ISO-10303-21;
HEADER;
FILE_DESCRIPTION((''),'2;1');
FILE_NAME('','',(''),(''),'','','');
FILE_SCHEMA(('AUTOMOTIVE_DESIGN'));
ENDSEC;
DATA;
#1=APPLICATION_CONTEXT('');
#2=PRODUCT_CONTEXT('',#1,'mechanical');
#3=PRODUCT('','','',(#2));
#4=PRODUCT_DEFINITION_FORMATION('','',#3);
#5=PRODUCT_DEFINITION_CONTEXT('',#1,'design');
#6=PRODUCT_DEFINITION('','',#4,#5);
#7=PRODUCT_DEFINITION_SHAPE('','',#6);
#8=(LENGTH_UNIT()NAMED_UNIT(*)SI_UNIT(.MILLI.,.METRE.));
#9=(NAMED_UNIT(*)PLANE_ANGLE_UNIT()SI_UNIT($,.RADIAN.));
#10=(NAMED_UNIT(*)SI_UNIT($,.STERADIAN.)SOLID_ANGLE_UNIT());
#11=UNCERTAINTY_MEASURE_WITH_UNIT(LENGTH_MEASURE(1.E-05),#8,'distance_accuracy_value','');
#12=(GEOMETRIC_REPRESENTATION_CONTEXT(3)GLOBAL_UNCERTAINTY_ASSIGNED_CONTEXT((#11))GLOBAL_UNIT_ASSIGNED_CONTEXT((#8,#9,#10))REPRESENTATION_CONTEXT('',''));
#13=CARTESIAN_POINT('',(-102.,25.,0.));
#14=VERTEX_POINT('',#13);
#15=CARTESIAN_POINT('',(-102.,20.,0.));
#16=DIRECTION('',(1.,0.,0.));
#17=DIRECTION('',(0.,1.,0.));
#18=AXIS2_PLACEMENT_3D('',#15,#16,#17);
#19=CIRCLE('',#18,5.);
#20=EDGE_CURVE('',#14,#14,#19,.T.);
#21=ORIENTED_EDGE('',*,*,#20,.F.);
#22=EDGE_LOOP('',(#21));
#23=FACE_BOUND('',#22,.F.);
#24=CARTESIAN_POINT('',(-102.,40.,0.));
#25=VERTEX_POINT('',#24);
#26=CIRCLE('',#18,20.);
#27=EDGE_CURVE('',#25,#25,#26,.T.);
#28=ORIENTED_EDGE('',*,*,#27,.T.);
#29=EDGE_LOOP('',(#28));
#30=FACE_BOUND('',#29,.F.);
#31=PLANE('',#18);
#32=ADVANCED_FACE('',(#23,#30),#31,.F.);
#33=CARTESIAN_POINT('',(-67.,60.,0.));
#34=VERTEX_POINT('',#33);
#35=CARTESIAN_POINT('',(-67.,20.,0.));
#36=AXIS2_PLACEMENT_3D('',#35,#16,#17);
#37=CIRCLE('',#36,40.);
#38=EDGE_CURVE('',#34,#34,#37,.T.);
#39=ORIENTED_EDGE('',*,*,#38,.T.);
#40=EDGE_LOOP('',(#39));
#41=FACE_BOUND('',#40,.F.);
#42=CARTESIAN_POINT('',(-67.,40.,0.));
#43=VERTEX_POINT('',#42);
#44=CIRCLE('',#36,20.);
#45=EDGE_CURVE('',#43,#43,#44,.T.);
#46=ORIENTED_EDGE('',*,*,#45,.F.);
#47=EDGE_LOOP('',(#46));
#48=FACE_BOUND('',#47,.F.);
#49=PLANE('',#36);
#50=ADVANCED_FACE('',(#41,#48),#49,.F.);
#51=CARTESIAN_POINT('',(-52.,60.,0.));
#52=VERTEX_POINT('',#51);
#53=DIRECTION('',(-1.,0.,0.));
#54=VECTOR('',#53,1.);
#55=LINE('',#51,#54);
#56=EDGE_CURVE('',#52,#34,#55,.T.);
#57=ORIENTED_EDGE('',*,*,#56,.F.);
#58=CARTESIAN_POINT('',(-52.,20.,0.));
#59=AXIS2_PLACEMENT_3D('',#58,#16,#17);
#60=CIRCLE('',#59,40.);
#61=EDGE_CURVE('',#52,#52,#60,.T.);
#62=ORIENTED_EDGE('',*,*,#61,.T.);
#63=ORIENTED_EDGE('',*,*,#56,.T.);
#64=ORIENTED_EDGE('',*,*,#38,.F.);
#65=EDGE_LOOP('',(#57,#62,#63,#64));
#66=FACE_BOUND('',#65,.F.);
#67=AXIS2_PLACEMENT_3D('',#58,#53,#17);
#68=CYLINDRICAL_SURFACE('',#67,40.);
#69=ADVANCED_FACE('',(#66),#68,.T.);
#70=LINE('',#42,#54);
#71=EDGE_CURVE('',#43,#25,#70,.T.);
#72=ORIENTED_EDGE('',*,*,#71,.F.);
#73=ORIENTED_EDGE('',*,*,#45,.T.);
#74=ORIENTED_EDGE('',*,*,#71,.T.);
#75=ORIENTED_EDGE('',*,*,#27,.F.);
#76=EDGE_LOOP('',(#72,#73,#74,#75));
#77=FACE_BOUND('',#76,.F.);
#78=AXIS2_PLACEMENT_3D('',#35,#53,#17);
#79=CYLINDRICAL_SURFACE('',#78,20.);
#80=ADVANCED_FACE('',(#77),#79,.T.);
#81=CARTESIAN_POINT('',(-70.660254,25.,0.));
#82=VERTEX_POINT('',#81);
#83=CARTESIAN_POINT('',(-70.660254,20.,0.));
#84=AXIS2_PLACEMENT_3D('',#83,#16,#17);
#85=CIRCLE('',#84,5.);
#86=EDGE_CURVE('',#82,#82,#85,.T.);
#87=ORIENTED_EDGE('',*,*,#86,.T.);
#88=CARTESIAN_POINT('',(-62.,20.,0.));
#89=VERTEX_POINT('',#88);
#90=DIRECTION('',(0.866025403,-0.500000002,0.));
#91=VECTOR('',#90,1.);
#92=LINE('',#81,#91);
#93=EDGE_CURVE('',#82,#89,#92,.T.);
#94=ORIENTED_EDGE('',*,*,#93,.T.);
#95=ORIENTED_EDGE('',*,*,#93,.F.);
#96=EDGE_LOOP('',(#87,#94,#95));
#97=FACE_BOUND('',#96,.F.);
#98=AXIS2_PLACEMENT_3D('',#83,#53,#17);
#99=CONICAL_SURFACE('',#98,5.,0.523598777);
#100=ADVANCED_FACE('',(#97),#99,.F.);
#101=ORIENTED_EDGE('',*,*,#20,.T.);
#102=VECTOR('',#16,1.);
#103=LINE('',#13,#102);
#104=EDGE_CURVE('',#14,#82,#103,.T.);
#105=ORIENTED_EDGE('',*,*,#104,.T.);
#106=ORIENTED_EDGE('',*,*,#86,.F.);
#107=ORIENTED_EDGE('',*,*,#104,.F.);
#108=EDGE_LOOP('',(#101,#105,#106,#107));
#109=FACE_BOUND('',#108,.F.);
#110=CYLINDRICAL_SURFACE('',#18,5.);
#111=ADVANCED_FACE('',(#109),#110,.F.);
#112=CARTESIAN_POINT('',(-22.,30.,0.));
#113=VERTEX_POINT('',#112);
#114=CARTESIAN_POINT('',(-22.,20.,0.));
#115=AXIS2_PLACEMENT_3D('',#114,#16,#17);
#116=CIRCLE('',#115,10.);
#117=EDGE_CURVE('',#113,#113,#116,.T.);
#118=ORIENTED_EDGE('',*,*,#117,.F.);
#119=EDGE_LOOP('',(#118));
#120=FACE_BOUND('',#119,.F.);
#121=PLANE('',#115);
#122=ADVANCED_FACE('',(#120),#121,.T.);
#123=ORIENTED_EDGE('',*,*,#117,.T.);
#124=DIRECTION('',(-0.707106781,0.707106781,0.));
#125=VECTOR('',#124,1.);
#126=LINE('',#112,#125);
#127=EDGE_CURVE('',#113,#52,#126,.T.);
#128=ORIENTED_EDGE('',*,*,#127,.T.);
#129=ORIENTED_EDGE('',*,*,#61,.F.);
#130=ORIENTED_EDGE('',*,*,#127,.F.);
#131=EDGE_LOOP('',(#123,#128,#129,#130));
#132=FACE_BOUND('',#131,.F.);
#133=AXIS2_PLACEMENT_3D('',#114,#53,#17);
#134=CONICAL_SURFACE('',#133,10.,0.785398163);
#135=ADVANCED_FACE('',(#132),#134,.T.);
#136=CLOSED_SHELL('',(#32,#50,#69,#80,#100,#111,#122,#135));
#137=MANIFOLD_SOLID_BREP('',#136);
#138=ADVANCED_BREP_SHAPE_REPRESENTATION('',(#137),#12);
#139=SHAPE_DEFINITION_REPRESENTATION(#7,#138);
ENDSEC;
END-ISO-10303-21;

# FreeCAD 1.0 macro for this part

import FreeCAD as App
import Part
import Sketcher
Q = App.Units.Quantity

doc = App.newDocument("Part")
body = doc.addObject("PartDesign::Body", "Body")

# Sketch on XY plane
sketch1 = body.newObject("Sketcher::SketchObject", "Sketch")
sketch1.AttachmentSupport = (doc.getObject("XY_Plane"), [""])
sketch1.MapMode = "FlatFace"
sketch1.addGeometry([
    Part.LineSegment(App.Vector(-67, 40, 0), App.Vector(-102, 40, 0)),  # 0
    Part.LineSegment(App.Vector(-102, 40, 0), App.Vector(-102, 25, 0)),  # 1
    Part.LineSegment(App.Vector(-102, 25, 0), App.Vector(-70.660254, 25, 0)),  # 2
    Part.LineSegment(App.Vector(-70.660254, 25, 0), App.Vector(-62, 20, 0)),  # 3
    Part.LineSegment(App.Vector(-62, 20, 0), App.Vector(-22, 20, 0)),  # 4
    Part.LineSegment(App.Vector(-22, 20, 0), App.Vector(-22, 30, 0)),  # 5
    Part.LineSegment(App.Vector(-22, 30, 0), App.Vector(-52, 60, 0)),  # 6
    Part.LineSegment(App.Vector(-52, 60, 0), App.Vector(-67, 60, 0)),  # 7
    Part.LineSegment(App.Vector(-67, 60, 0), App.Vector(-67, 40, 0)),  # 8
], False)
sketch1.addGeometry(Part.LineSegment(App.Vector(-102, 20, 0), App.Vector(-22, 20, 0)), True)  # axis
sketch1.addConstraint([
    Sketcher.Constraint("Coincident", 0, 2, 1, 1),
    Sketcher.Constraint("Coincident", 1, 2, 2, 1),
    Sketcher.Constraint("Coincident", 2, 2, 3, 1),
    Sketcher.Constraint("Coincident", 3, 2, 4, 1),
    Sketcher.Constraint("Coincident", 4, 2, 5, 1),
    Sketcher.Constraint("Coincident", 5, 2, 6, 1),
    Sketcher.Constraint("Coincident", 6, 2, 7, 1),
    Sketcher.Constraint("Coincident", 7, 2, 8, 1),
    Sketcher.Constraint("Coincident", 8, 2, 0, 1),
    Sketcher.Constraint("Horizontal", 0),
    Sketcher.Constraint("Vertical", 1),
    Sketcher.Constraint("Horizontal", 2),
    Sketcher.Constraint("Horizontal", 4),
    Sketcher.Constraint("Vertical", 5),
    Sketcher.Constraint("Horizontal", 7),
    Sketcher.Constraint("Vertical", 8),
    Sketcher.Constraint("Horizontal", 9),
    Sketcher.Constraint("Coincident", 9, 2, 4, 2),
    Sketcher.Constraint("Vertical", 1, 2, 9, 1),
    Sketcher.Constraint("Equal", 7, 1),
    Sketcher.Constraint("DistanceX", 0, 2, 0, 1, Q("35 mm")),
    Sketcher.Constraint("DistanceX", 4, 1, 4, 2, Q("40 mm")),
    Sketcher.Constraint("DistanceX", 7, 2, 7, 1, Q("15 mm")),
    Sketcher.Constraint("DistanceX", 9, 1, 9, 2, Q("80 mm")),
    Sketcher.Constraint("DistanceY", 5, 1, 5, 2, Q("10 mm")),
    Sketcher.Constraint("DistanceY", 8, 2, 8, 1, Q("20 mm")),
    Sketcher.Constraint("Angle", 3, Q("-30 deg")),
    Sketcher.Constraint("Angle", 6, Q("135 deg")),
    Sketcher.Constraint("DistanceX", 0, 2, -1, 1, Q("102 mm")),
    Sketcher.Constraint("DistanceY", -1, 1, 0, 2, Q("40 mm")),
])
revolution = body.newObject("PartDesign::Revolution", "Revolution")
revolution.Profile = sketch1
revolution.ReferenceAxis = (sketch1, ["Axis0"])
revolution.Angle = 360

doc.recompute()
